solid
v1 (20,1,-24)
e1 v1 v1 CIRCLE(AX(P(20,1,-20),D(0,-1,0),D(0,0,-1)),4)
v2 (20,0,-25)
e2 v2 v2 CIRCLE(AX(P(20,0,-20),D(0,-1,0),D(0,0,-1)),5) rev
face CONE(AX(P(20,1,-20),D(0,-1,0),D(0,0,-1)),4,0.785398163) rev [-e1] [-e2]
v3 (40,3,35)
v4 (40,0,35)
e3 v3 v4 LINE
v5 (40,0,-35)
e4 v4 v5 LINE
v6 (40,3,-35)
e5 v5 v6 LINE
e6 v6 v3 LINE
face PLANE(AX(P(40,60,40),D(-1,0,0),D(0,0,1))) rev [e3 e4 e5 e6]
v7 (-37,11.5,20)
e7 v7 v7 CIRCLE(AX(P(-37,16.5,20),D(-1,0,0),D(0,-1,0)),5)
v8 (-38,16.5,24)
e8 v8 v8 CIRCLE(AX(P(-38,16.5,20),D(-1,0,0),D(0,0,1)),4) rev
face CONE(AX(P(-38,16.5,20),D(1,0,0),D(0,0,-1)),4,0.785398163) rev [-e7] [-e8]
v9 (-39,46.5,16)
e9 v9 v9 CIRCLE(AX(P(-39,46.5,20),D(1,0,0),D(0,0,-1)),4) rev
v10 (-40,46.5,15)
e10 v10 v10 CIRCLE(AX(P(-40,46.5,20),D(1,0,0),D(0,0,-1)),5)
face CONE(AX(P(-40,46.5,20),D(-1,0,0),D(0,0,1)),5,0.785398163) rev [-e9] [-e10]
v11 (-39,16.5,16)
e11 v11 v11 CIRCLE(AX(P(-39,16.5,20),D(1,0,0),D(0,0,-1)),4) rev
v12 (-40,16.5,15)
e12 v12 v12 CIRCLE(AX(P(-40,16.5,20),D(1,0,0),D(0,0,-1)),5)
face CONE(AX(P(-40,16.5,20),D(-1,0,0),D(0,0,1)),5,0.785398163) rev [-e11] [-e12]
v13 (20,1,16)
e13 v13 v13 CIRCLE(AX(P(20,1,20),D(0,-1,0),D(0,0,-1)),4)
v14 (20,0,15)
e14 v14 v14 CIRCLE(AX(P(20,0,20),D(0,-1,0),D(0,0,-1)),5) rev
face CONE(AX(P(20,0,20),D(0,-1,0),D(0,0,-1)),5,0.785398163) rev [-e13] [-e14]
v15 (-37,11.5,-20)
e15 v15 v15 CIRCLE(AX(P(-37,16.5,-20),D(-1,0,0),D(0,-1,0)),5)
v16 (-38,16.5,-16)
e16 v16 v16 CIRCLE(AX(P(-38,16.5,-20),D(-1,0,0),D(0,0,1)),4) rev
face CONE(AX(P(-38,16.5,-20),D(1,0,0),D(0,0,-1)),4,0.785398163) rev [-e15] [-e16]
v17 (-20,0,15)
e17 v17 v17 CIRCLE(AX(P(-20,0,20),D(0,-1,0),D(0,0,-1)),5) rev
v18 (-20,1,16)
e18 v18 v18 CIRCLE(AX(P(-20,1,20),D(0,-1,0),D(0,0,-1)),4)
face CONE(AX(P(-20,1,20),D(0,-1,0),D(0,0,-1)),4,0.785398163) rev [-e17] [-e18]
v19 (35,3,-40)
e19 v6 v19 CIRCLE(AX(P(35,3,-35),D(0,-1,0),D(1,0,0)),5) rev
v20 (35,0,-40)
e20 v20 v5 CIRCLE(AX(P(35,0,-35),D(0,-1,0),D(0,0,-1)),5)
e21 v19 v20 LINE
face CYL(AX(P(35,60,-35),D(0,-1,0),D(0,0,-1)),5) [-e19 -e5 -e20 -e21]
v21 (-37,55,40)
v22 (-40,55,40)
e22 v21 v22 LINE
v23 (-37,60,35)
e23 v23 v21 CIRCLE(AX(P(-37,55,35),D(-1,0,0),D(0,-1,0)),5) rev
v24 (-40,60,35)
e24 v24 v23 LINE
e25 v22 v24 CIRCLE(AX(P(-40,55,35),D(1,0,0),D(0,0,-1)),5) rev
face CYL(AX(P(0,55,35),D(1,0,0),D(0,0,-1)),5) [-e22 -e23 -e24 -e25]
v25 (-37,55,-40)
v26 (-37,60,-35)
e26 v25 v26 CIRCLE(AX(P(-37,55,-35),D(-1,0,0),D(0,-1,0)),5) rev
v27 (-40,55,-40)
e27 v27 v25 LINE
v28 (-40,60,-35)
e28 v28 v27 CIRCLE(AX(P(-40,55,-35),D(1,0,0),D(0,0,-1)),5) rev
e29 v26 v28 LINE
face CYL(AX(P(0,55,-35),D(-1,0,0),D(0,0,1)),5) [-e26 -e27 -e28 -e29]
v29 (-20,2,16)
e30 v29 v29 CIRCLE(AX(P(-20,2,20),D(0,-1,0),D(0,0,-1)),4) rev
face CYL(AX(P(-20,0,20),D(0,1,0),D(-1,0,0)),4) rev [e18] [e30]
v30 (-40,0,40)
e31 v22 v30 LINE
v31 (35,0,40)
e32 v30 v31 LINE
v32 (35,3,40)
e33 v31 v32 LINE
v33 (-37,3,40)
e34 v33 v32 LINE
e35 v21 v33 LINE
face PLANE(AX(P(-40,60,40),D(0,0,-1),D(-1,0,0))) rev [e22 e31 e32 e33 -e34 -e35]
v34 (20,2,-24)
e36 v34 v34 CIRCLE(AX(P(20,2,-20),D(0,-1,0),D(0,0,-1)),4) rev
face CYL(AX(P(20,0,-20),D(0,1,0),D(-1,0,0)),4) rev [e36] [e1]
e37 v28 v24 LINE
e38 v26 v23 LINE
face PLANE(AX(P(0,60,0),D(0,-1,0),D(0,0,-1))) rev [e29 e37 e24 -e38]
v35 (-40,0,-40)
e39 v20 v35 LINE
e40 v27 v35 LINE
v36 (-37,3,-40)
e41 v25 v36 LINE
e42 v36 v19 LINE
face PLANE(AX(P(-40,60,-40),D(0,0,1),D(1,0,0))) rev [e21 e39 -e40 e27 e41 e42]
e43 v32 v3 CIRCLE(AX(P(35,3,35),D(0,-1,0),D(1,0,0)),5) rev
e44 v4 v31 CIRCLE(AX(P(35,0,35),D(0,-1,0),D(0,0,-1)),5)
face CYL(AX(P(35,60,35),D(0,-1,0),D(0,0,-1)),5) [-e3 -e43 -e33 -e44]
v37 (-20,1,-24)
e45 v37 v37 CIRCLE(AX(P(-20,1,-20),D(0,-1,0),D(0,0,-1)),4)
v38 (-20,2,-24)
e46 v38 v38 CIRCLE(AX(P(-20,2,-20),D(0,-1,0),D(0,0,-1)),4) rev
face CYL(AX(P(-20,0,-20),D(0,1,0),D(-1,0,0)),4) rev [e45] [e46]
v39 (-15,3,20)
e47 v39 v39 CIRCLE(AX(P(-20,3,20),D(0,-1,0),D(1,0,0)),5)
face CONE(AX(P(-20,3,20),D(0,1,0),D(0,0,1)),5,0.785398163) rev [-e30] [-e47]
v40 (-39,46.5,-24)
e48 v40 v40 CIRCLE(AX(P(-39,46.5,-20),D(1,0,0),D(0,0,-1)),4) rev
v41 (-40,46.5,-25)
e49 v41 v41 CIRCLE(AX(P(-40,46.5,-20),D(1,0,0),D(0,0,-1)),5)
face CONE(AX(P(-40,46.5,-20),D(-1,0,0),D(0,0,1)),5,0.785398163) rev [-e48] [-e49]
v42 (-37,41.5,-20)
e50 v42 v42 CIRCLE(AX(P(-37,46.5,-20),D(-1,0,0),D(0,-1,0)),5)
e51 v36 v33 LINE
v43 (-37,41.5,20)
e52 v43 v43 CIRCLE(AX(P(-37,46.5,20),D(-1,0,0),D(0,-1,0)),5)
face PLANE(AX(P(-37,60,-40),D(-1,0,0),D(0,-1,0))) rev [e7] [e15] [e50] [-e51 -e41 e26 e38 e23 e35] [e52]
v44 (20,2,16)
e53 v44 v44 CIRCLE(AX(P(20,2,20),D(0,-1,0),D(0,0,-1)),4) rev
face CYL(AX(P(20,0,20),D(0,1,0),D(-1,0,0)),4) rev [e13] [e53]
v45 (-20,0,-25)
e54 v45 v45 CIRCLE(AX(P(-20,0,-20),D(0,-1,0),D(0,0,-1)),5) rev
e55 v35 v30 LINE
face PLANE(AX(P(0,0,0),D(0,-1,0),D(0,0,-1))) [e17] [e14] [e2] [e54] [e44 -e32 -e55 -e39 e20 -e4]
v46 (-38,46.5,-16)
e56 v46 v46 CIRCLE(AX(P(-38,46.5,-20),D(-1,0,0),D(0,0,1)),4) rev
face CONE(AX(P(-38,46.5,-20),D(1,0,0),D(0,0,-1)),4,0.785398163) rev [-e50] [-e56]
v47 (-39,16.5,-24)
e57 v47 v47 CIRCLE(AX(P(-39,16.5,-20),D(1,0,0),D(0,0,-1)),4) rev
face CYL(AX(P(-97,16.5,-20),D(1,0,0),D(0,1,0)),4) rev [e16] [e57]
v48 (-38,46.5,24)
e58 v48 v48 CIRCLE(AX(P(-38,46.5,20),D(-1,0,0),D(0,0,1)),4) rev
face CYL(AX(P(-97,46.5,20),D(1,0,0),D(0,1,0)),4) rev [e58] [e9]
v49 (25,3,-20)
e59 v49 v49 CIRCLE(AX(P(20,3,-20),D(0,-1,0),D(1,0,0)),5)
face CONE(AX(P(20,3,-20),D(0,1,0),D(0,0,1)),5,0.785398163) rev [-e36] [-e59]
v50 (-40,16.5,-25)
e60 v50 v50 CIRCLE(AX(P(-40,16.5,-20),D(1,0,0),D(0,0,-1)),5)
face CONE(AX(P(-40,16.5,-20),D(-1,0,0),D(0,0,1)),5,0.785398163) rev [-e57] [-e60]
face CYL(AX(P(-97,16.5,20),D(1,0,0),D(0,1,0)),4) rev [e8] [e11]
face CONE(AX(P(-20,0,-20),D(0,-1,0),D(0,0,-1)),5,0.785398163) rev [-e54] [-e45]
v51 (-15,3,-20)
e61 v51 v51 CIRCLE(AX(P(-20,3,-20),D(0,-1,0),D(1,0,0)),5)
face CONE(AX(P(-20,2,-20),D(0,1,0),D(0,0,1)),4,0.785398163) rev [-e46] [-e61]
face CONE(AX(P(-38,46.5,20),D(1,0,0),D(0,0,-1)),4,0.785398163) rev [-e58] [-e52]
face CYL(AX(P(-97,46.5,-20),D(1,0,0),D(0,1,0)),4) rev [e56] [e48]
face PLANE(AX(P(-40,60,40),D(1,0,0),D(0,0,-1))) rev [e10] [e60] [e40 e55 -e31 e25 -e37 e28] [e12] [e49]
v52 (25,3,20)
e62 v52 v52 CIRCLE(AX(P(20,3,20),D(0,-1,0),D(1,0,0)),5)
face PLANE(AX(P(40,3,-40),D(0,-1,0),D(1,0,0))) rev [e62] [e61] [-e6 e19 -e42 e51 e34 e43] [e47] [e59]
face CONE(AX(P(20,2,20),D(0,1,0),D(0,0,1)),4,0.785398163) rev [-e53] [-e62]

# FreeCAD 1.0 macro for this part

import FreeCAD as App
import Part
import Sketcher
from FreeCAD import Vector
Q = App.Units.Quantity


def edges_at(feature, points):
    """Names of the edges that pass closest to the given points."""
    edges = feature.Shape.Edges
    near = lambda p: min(range(len(edges)), key=lambda i: edges[i].distToShape(Part.Vertex(*p))[0])
    return sorted({f"Edge{near(p) + 1}" for p in points})

doc = App.newDocument("Part")
body = doc.addObject("PartDesign::Body", "Body")

# Sketch on XZ plane
sketch1 = body.newObject("Sketcher::SketchObject", "Sketch")
sketch1.AttachmentSupport = (doc.getObject("XZ_Plane"), [""])
sketch1.MapMode = "FlatFace"
sketch1.addGeometry([
    Part.LineSegment(Vector(-40, -40, 0), Vector(-40, 40, 0)),
    Part.LineSegment(Vector(-40, 40, 0), Vector(40, 40, 0)),
    Part.LineSegment(Vector(40, 40, 0), Vector(40, -40, 0)),
    Part.LineSegment(Vector(40, -40, 0), Vector(-40, -40, 0)),
], False)
sketch1.addConstraint([
    Sketcher.Constraint("Coincident", 0, 2, 1, 1),
    Sketcher.Constraint("Coincident", 1, 2, 2, 1),
    Sketcher.Constraint("Coincident", 2, 2, 3, 1),
    Sketcher.Constraint("Coincident", 3, 2, 0, 1),
    Sketcher.Constraint("Vertical", 0),
    Sketcher.Constraint("Horizontal", 1),
    Sketcher.Constraint("Vertical", 2),
    Sketcher.Constraint("Horizontal", 3),
    Sketcher.Constraint("Symmetric", 0, 2, 2, 2, -1, 1),
    Sketcher.Constraint("Equal", 3, 0),
    Sketcher.Constraint("DistanceX", 1, 1, 1, 2, Q("80 mm")),
])
pad1 = body.newObject("PartDesign::Pad", "Pad")
pad1.Profile = sketch1
pad1.Length = 60
pad1.Reversed = True

# Sketch on XY plane
sketch2 = body.newObject("Sketcher::SketchObject", "Sketch001")
sketch2.AttachmentSupport = (doc.getObject("XY_Plane"), [""])
sketch2.MapMode = "FlatFace"
sketch2.AttachmentOffset = App.Placement(Vector(0, 0, 40), App.Rotation())
sketch2.addGeometry([
    Part.LineSegment(Vector(-37, 60, 0), Vector(-37, 3, 0)),
    Part.LineSegment(Vector(-37, 3, 0), Vector(40, 3, 0)),
    Part.LineSegment(Vector(40, 3, 0), Vector(40, 60, 0)),
    Part.LineSegment(Vector(40, 60, 0), Vector(-37, 60, 0)),
], False)
sketch2.addConstraint([
    Sketcher.Constraint("Coincident", 0, 2, 1, 1),
    Sketcher.Constraint("Coincident", 1, 2, 2, 1),
    Sketcher.Constraint("Coincident", 2, 2, 3, 1),
    Sketcher.Constraint("Coincident", 3, 2, 0, 1),
    Sketcher.Constraint("Vertical", 0),
    Sketcher.Constraint("Horizontal", 1),
    Sketcher.Constraint("Vertical", 2),
    Sketcher.Constraint("Horizontal", 3),
    Sketcher.Constraint("DistanceX", 1, 1, 1, 2, Q("77 mm")),
    Sketcher.Constraint("DistanceY", 0, 2, 0, 1, Q("57 mm")),
    Sketcher.Constraint("DistanceX", 0, 2, -1, 1, Q("37 mm")),
    Sketcher.Constraint("DistanceY", -1, 1, 0, 2, Q("3 mm")),
])
pocket1 = body.newObject("PartDesign::Pocket", "Pocket")
pocket1.Profile = sketch2
pocket1.Type = "ThroughAll"

# Sketch on XZ plane
sketch3 = body.newObject("Sketcher::SketchObject", "Sketch002")
sketch3.AttachmentSupport = (doc.getObject("XZ_Plane"), [""])
sketch3.MapMode = "FlatFace"
sketch3.AttachmentOffset = App.Placement(Vector(0, 0, -3), App.Rotation())
sketch3.addGeometry([
    Part.Circle(Vector(20, 20, 0), Vector(0, 0, 1), 4),
    Part.Circle(Vector(20, -20, 0), Vector(0, 0, 1), 4),
    Part.Circle(Vector(-20, -20, 0), Vector(0, 0, 1), 4),
    Part.Circle(Vector(-20, 20, 0), Vector(0, 0, 1), 4),
], False)
sketch3.addConstraint([
    Sketcher.Constraint("Equal", 0, 1),
    Sketcher.Constraint("Equal", 1, 2),
    Sketcher.Constraint("Equal", 2, 3),
    Sketcher.Constraint("Symmetric", 0, 3, 2, 3, -1, 1),
    Sketcher.Constraint("Symmetric", 1, 3, 3, 3, -1, 1),
    Sketcher.Constraint("Symmetric", 1, 3, 2, 3, -2),
    Sketcher.Constraint("Diameter", 0, Q("8 mm")),
    Sketcher.Constraint("DistanceX", -1, 1, 0, 3, Q("20 mm")),
    Sketcher.Constraint("DistanceY", -1, 1, 0, 3, Q("20 mm")),
])
pocket2 = body.newObject("PartDesign::Pocket", "Pocket001")
pocket2.Profile = sketch3
pocket2.Type = "ThroughAll"
pocket2.Reversed = True

# Sketch on YZ plane
sketch4 = body.newObject("Sketcher::SketchObject", "Sketch003")
sketch4.AttachmentSupport = (doc.getObject("YZ_Plane"), [""])
sketch4.MapMode = "FlatFace"
sketch4.AttachmentOffset = App.Placement(Vector(0, 0, -37), App.Rotation())
sketch4.addGeometry([
    Part.Circle(Vector(46.5, 20, 0), Vector(0, 0, 1), 4),
    Part.Circle(Vector(16.5, 20, 0), Vector(0, 0, 1), 4),
    Part.Circle(Vector(16.5, -20, 0), Vector(0, 0, 1), 4),
    Part.Circle(Vector(46.5, -20, 0), Vector(0, 0, 1), 4),
], False)
sketch4.addConstraint([
    Sketcher.Constraint("Equal", 0, 1),
    Sketcher.Constraint("Equal", 1, 2),
    Sketcher.Constraint("Equal", 2, 3),
    Sketcher.Constraint("Symmetric", 1, 3, 2, 3, -1),
    Sketcher.Constraint("Symmetric", 0, 3, 3, 3, -1),
    Sketcher.Constraint("Horizontal", 0, 3, 1, 3),
    Sketcher.Constraint("Diameter", 0, Q("8 mm")),
    Sketcher.Constraint("DistanceY", -1, 1, 0, 3, Q("20 mm")),
    Sketcher.Constraint("DistanceX", 1, 3, 0, 3, Q("30 mm")),
    Sketcher.Constraint("DistanceX", -1, 1, 0, 3, Q("46.5 mm")),
])
pocket3 = body.newObject("PartDesign::Pocket", "Pocket002")
pocket3.Profile = sketch4
pocket3.Length = 60
doc.recompute()

fillet = body.newObject("PartDesign::Fillet", "Fillet")
fillet.Base = (pocket3, edges_at(pocket3, [
    (-38.5, 60, -40),
    (40, 1.5, 40),
    (40, 1.5, -40),
    (-38.5, 60, 40),
]))
fillet.Radius = 5
doc.recompute()

chamfer = body.newObject("PartDesign::Chamfer", "Chamfer")
chamfer.Base = (fillet, edges_at(fillet, [
    (-24, 3, 20),
    (-24, 0, 20),
    (-16, 0, -20),
    (-16, 3, -20),
    (24, 3, -20),
    (24, 0, -20),
    (24, 0, 20),
    (24, 3, 20),
    (-40, 46.5, -16),
    (-37, 46.5, -16),
    (-40, 12.5, -20),
    (-37, 12.5, -20),
    (-40, 16.5, 24),
    (-37, 16.5, 24),
    (-40, 42.5, 20),
    (-37, 42.5, 20),
]))
chamfer.Size = 1

doc.recompute()
